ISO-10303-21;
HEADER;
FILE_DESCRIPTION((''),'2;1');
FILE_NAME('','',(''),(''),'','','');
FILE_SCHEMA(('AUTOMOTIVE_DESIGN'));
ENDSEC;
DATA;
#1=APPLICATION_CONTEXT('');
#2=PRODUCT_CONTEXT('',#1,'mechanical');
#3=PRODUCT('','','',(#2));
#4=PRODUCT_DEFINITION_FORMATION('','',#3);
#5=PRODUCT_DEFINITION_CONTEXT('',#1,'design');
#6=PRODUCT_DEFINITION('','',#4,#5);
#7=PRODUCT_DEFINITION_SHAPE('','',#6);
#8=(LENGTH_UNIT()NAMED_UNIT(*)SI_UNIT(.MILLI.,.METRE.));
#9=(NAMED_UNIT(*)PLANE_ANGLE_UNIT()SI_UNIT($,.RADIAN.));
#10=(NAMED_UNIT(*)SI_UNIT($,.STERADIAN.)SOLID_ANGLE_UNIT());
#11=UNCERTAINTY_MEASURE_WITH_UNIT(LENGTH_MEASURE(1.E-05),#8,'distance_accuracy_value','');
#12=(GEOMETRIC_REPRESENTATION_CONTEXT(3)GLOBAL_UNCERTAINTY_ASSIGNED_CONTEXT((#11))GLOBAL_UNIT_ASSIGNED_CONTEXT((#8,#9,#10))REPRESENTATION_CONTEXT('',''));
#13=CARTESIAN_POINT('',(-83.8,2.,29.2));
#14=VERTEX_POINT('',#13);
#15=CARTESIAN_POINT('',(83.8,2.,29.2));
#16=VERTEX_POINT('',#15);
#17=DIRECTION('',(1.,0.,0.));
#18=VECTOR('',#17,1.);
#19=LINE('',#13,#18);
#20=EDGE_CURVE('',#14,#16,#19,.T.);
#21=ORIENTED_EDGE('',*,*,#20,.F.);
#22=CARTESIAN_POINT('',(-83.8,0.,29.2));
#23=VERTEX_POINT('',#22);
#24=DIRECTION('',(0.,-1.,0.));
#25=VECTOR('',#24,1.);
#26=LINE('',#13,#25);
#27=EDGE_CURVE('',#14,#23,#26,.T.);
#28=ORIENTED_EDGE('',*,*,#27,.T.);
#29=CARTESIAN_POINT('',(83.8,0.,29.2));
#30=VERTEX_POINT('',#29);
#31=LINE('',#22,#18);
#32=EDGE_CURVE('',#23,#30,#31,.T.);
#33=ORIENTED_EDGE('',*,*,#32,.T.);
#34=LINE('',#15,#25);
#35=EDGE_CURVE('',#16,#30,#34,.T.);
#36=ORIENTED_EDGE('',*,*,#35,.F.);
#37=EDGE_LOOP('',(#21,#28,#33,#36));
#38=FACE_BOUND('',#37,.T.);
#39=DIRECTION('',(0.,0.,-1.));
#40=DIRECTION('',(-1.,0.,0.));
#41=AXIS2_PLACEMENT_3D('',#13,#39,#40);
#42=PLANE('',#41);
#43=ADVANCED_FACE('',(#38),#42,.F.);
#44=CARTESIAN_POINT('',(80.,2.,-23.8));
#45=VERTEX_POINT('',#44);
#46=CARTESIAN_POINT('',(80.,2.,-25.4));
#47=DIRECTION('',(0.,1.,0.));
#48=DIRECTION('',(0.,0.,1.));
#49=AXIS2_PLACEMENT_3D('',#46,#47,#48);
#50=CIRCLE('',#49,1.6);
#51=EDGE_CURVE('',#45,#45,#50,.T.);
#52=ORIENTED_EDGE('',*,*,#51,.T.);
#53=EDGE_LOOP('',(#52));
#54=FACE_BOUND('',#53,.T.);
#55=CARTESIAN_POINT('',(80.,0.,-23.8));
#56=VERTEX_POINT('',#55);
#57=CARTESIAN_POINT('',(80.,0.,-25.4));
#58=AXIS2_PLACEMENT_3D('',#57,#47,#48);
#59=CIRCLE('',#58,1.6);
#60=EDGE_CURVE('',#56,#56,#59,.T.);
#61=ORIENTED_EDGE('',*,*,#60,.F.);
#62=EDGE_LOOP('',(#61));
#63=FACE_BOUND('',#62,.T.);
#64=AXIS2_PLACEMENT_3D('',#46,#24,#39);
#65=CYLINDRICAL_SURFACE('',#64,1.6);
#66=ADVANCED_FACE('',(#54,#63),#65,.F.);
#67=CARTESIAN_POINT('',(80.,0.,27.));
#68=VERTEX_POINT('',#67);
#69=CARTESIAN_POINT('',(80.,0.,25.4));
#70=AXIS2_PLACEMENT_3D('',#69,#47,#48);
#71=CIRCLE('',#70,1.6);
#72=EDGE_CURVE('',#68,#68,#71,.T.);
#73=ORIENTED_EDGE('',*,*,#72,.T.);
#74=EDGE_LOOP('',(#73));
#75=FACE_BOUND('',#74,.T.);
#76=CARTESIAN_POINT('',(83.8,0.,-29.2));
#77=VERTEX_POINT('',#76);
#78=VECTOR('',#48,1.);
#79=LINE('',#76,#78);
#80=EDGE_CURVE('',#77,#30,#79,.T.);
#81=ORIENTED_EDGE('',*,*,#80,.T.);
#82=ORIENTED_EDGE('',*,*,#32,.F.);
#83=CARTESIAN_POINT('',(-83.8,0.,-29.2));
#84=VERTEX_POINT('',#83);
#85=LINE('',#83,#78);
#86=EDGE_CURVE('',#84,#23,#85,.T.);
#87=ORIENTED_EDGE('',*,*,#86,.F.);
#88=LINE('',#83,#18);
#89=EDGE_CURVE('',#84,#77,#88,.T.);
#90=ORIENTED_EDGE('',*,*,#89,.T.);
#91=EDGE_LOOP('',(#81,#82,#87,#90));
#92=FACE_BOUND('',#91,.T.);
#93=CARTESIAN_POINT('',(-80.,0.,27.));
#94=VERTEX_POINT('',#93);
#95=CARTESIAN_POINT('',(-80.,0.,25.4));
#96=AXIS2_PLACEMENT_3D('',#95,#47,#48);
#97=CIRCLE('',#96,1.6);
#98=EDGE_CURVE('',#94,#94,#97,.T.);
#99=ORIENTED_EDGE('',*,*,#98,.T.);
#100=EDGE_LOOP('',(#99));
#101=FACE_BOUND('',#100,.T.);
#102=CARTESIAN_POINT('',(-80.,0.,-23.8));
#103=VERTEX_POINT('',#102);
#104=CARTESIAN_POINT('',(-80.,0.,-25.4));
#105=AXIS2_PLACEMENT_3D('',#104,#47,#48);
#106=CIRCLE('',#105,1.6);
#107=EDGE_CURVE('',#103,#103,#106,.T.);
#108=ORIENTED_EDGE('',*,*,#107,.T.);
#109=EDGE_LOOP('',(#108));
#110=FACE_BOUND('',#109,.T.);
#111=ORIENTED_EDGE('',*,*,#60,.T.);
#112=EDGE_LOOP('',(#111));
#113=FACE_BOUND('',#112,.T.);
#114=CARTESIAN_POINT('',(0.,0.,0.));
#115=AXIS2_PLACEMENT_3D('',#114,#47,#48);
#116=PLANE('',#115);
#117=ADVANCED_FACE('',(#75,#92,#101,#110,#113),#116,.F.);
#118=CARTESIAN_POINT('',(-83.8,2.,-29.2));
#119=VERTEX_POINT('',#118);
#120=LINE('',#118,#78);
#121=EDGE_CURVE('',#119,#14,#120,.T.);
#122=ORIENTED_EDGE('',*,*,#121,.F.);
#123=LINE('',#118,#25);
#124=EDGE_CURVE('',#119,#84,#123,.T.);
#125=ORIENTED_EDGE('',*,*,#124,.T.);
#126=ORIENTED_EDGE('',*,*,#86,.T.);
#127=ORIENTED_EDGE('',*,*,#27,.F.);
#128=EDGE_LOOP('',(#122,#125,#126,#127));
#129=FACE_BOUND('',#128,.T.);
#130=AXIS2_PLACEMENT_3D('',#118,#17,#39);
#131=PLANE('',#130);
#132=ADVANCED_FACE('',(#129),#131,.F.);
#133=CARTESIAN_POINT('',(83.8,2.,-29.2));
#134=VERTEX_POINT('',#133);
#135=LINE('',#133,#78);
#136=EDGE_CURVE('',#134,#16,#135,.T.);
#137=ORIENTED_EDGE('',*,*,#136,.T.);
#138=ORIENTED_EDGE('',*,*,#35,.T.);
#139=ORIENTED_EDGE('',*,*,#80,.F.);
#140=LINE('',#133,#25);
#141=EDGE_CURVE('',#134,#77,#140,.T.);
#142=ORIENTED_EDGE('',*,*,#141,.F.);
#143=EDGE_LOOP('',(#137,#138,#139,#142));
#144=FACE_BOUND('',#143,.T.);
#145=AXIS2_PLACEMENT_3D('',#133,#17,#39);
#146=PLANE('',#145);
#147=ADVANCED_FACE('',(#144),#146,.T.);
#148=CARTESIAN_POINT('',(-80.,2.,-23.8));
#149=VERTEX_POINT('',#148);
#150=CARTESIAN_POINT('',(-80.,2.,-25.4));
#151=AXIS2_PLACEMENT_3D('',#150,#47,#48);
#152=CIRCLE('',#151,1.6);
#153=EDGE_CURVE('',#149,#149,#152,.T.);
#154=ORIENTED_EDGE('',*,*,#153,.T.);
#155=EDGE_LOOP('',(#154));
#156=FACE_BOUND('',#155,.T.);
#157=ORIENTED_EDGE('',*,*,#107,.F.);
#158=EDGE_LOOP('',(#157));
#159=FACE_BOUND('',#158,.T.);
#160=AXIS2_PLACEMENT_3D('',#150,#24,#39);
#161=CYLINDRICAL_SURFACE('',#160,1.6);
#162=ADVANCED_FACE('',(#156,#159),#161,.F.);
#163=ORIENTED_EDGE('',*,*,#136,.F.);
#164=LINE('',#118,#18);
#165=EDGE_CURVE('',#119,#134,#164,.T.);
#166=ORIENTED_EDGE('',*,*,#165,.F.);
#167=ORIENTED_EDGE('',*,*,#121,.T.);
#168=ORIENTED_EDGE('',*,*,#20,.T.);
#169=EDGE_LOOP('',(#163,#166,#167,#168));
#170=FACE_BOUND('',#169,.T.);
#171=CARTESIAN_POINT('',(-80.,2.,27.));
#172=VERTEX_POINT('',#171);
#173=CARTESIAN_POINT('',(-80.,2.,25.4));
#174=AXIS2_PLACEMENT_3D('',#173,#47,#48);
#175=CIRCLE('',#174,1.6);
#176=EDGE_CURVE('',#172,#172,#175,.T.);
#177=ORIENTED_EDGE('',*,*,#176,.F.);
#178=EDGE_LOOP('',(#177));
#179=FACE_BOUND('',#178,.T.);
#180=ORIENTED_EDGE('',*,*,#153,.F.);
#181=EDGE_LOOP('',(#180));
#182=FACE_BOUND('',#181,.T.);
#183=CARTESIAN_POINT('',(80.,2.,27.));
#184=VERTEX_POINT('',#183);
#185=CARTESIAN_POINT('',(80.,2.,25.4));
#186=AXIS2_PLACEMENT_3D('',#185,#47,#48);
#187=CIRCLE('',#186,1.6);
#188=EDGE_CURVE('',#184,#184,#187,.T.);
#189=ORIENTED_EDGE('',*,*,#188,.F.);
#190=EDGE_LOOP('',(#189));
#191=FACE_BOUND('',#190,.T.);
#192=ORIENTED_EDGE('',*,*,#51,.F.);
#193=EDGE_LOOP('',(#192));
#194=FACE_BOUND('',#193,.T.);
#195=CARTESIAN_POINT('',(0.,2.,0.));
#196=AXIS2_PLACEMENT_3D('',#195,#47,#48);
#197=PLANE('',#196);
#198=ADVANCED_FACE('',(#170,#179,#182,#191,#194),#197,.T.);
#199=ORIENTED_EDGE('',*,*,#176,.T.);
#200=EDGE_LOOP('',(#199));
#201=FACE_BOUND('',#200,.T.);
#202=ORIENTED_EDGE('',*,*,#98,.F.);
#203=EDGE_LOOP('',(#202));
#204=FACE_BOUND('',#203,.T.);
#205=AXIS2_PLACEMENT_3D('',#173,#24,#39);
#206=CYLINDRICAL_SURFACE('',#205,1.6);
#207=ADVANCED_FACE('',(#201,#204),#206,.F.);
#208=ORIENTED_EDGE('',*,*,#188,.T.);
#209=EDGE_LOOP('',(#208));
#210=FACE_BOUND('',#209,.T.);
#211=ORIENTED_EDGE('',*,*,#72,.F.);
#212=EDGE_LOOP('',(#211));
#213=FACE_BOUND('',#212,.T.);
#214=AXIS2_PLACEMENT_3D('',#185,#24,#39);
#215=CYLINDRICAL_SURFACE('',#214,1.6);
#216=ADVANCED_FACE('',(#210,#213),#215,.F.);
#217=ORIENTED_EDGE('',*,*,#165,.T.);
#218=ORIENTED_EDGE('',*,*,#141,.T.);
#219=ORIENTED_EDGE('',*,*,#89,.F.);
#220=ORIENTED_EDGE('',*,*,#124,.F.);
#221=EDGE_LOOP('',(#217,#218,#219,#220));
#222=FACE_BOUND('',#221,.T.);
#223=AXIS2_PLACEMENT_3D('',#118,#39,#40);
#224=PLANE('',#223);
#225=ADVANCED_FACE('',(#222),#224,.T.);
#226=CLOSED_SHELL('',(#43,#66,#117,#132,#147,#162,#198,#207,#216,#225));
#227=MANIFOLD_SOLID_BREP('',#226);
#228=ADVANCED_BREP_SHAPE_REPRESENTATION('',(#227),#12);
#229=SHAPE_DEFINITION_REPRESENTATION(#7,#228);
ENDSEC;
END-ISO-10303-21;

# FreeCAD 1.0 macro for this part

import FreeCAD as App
import Part
import Sketcher
from FreeCAD import Vector
Q = App.Units.Quantity


def add_polygon(sketch, points):
    """Adds a closed chain of lines whose ends are joined by coincident constraints."""
    first, n = sketch.GeometryCount, len(points)
    for a, b in zip(points, points[1:] + points[:1]):
        sketch.addGeometry(Part.LineSegment(App.Vector(*a, 0), App.Vector(*b, 0)), False)
    for i in range(n):
        sketch.addConstraint(Sketcher.Constraint("Coincident", first + i, 2, first + (i + 1) % n, 1))

doc = App.newDocument("Part")
params = doc.addObject("Spreadsheet::Sheet", "Params")
for row, (alias, value) in enumerate([
    ("sketch1_width", "167.6 mm"),
    ("sketch1_height", "58.4 mm"),
    ("pad1_length", "2 mm"),
    ("sketch2_diameter", "3.2 mm"),
], start=1):
    params.set(f"A{row}", alias)
    params.set(f"B{row}", "=" + value)
    params.setAlias(f"B{row}", alias)

body = doc.addObject("PartDesign::Body", "Body")

# Sketch on XZ plane
sketch1 = body.newObject("Sketcher::SketchObject", "Sketch")
sketch1.AttachmentSupport = (doc.getObject("XZ_Plane"), [""])
sketch1.MapMode = "FlatFace"
add_polygon(sketch1, [(-84, -29), (-84, 29), (84, 29), (84, -29)])  # lines 0-3
sketch1.addConstraint([
    Sketcher.Constraint("Vertical", 0),
    Sketcher.Constraint("Horizontal", 1),
    Sketcher.Constraint("Vertical", 2),
    Sketcher.Constraint("Horizontal", 3),
    Sketcher.Constraint("Symmetric", 0, 2, 2, 2, -1, 1),
    Sketcher.Constraint("DistanceX", 1, 1, 1, 2, Q("167.6 mm")),
    Sketcher.Constraint("DistanceY", 0, 1, 0, 2, Q("58.4 mm")),
])
sketch1.setExpression("Constraints[9]", "Params.sketch1_width")
sketch1.setExpression("Constraints[10]", "Params.sketch1_height")
pad1 = body.newObject("PartDesign::Pad", "Pad")
pad1.Profile = sketch1
pad1.setExpression("Length", "Params.pad1_length")
pad1.Reversed = True

# Sketch on XZ plane
sketch2 = body.newObject("Sketcher::SketchObject", "Sketch001")
sketch2.AttachmentSupport = (doc.getObject("XZ_Plane"), [""])
sketch2.MapMode = "FlatFace"
sketch2.addGeometry([
    Part.Circle(Vector(-80, -25.4, 0), Vector(0, 0, 1), 1.6),
    Part.Circle(Vector(-80, 25.4, 0), Vector(0, 0, 1), 1.6),
    Part.Circle(Vector(80, -25.4, 0), Vector(0, 0, 1), 1.6),
    Part.Circle(Vector(80, 25.4, 0), Vector(0, 0, 1), 1.6),
], False)
sketch2.addConstraint([
    Sketcher.Constraint("Equal", 0, 1),
    Sketcher.Constraint("Equal", 1, 2),
    Sketcher.Constraint("Equal", 2, 3),
    Sketcher.Constraint("Symmetric", 1, 3, 2, 3, -1, 1),
    Sketcher.Constraint("Symmetric", 0, 3, 3, 3, -1, 1),
    Sketcher.Constraint("Symmetric", 0, 3, 2, 3, -2),
    Sketcher.Constraint("Diameter", 0, Q("3.2 mm")),
    Sketcher.Constraint("DistanceX", 0, 3, -1, 1, Q("80 mm")),
    Sketcher.Constraint("DistanceY", 0, 3, -1, 1, Q("25.4 mm")),
])
sketch2.setExpression("Constraints[6]", "Params.sketch2_diameter")
pocket1 = body.newObject("PartDesign::Pocket", "Pocket")
pocket1.Profile = sketch2
pocket1.Type = "ThroughAll"

doc.recompute()
